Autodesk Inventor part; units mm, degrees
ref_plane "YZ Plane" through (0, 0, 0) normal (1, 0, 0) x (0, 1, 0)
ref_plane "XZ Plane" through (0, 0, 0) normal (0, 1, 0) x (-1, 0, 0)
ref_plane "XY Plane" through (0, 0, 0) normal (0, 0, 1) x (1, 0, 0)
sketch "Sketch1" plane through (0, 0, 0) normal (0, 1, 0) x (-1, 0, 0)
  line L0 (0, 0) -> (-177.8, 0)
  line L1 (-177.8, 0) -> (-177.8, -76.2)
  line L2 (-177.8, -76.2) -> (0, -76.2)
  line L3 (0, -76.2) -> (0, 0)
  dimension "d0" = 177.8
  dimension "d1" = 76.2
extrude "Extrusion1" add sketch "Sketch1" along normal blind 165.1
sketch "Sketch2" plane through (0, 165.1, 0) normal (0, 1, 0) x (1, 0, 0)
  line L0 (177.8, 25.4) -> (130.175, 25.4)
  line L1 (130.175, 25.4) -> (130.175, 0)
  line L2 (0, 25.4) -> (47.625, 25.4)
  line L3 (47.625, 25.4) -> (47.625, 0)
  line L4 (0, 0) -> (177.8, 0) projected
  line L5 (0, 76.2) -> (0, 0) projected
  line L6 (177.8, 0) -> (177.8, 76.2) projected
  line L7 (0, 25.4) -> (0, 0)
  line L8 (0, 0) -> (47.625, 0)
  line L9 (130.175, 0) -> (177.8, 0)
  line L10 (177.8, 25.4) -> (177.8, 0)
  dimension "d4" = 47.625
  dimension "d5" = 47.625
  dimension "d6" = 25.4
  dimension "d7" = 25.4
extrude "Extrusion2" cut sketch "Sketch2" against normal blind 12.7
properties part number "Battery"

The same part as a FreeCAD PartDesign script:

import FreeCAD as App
import Part
import Sketcher
Q = App.Units.Quantity


def add_polygon(sketch, points):
    """Adds a closed chain of lines whose ends are joined by coincident constraints."""
    first, n = sketch.GeometryCount, len(points)
    for a, b in zip(points, points[1:] + points[:1]):
        sketch.addGeometry(Part.LineSegment(App.Vector(*a, 0), App.Vector(*b, 0)), False)
    for i in range(n):
        sketch.addConstraint(Sketcher.Constraint("Coincident", first + i, 2, first + (i + 1) % n, 1))

doc = App.newDocument("Part")
body = doc.addObject("PartDesign::Body", "Body")

# Sketch on XZ plane
sketch1 = body.newObject("Sketcher::SketchObject", "Sketch")
sketch1.AttachmentSupport = (doc.getObject("XZ_Plane"), [""])
sketch1.MapMode = "FlatFace"
add_polygon(sketch1, [(0, -76), (0, 0), (178, 0), (178, -76)])  # lines 0-3
sketch1.addConstraint([
    Sketcher.Constraint("Vertical", 0),
    Sketcher.Constraint("Horizontal", 1),
    Sketcher.Constraint("Vertical", 2),
    Sketcher.Constraint("Horizontal", 3),
    Sketcher.Constraint("Coincident", 0, 2, -1, 1),
    Sketcher.Constraint("DistanceX", 1, 1, 1, 2, Q("7 in")),
    Sketcher.Constraint("DistanceY", 0, 1, 0, 2, Q("3 in")),
])
pad1 = body.newObject("PartDesign::Pad", "Pad")
pad1.Profile = sketch1
pad1.Length = Q("6.5 in")
pad1.Reversed = True

# Sketch on XZ plane
sketch2 = body.newObject("Sketcher::SketchObject", "Sketch001")
sketch2.AttachmentSupport = (doc.getObject("XZ_Plane"), [""])
sketch2.MapMode = "FlatFace"
sketch2.AttachmentOffset = App.Placement(App.Vector(0, 0, -6.5 * 25.4), App.Rotation())
add_polygon(sketch2, [(178, 0), (178, -25), (130, -25), (130, 0)])  # lines 0-3
add_polygon(sketch2, [(0, 0), (48, 0), (48, -25), (0, -25)])  # lines 4-7
sketch2.addConstraint([
    Sketcher.Constraint("Vertical", 0),
    Sketcher.Constraint("Horizontal", 1),
    Sketcher.Constraint("Vertical", 2),
    Sketcher.Constraint("Horizontal", 3),
    Sketcher.Constraint("Horizontal", 4),
    Sketcher.Constraint("Vertical", 5),
    Sketcher.Constraint("Horizontal", 6),
    Sketcher.Constraint("Vertical", 7),
    Sketcher.Constraint("Coincident", 7, 2, -1, 1),
    Sketcher.Constraint("PointOnObject", 2, 2, -1),
    Sketcher.Constraint("Horizontal", 1, 2, 5, 2),
    Sketcher.Constraint("Equal", 3, 4),
    Sketcher.Constraint("DistanceY", 0, 2, 0, 1, Q("1 in")),
    Sketcher.Constraint("DistanceX", 1, 2, 1, 1, Q("1.875 in")),
    Sketcher.Constraint("DistanceX", -1, 1, 0, 2, Q("7 in")),
])
pocket1 = body.newObject("PartDesign::Pocket", "Pocket")
pocket1.Profile = sketch2
pocket1.Length = Q("0.5 in")
pocket1.Reversed = True

doc.recompute()
